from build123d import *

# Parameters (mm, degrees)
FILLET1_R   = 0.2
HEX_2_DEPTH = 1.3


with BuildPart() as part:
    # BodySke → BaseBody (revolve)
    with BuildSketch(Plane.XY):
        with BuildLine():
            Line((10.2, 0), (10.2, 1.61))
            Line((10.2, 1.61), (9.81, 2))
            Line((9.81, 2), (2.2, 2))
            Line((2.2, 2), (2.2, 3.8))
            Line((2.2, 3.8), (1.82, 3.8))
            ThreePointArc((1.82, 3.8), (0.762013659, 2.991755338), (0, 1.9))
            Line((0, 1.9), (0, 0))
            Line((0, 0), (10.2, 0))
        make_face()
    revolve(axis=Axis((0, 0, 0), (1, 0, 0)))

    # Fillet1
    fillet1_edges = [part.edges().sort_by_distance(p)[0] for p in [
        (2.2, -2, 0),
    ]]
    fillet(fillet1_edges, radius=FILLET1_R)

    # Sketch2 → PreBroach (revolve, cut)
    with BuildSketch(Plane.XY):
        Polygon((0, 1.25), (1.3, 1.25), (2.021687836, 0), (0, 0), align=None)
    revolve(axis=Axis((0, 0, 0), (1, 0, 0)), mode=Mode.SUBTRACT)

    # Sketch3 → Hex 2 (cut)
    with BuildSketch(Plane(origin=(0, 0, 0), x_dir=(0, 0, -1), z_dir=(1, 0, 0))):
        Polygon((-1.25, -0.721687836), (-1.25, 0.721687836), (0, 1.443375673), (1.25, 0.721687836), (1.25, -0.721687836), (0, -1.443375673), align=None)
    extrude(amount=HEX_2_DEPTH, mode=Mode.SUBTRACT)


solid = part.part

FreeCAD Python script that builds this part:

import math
import FreeCAD as App
import Part
import Sketcher

V = App.Vector
Q = App.Units.Quantity


def edges_at(feature, points):
    """Names of the edges that pass closest to the given points."""
    edges = feature.Shape.Edges
    near = lambda p: min(range(len(edges)), key=lambda i: edges[i].distToShape(Part.Vertex(*p))[0])
    return sorted({f"Edge{near(p) + 1}" for p in points})


def add_polygon(sketch, points):
    """Adds a closed chain of lines whose ends are joined by coincident constraints."""
    first, n = sketch.GeometryCount, len(points)
    for a, b in zip(points, points[1:] + points[:1]):
        sketch.addGeometry(Part.LineSegment(App.Vector(*a, 0), App.Vector(*b, 0)), False)
    for i in range(n):
        sketch.addConstraint(Sketcher.Constraint("Coincident", first + i, 2, first + (i + 1) % n, 1))

doc = App.newDocument("Part")
body = doc.addObject("PartDesign::Body", "Body")

sketch1 = body.newObject("Sketcher::SketchObject", "Sketch")
sketch1.AttachmentSupport = (doc.getObject("XY_Plane"), [""])
sketch1.MapMode = "FlatFace"
sketch1.addGeometry([
    Part.LineSegment(V(10.2, 0, 0), V(10.2, 1.61, 0)),
    Part.LineSegment(V(10.2, 1.61, 0), V(9.81, 2, 0)),
    Part.LineSegment(V(9.81, 2, 0), V(2.2, 2, 0)),
    Part.LineSegment(V(2.2, 2, 0), V(2.2, 3.8, 0)),
    Part.LineSegment(V(2.2, 3.8, 0), V(1.82, 3.8, 0)),
    Part.ArcOfCircle(Part.Circle(V(3.885275, 0, 0), V(0, 0, 1), 4.324969), math.radians(118.523786), math.radians(153.940169)),
    Part.LineSegment(V(0, 1.9, 0), V(0, 0, 0)),
    Part.LineSegment(V(0, 0, 0), V(10.2, 0, 0)),
], False)
sketch1.addConstraint([
    Sketcher.Constraint("Coincident", 0, 2, 1, 1),
    Sketcher.Constraint("Coincident", 1, 2, 2, 1),
    Sketcher.Constraint("Coincident", 2, 2, 3, 1),
    Sketcher.Constraint("Coincident", 3, 2, 4, 1),
    Sketcher.Constraint("Coincident", 4, 2, 5, 1),
    Sketcher.Constraint("Coincident", 5, 2, 6, 1),
    Sketcher.Constraint("Coincident", 6, 2, 7, 1),
    Sketcher.Constraint("Coincident", 7, 2, 0, 1),
    Sketcher.Constraint("Vertical", 0),
    Sketcher.Constraint("Horizontal", 2),
    Sketcher.Constraint("Vertical", 3),
    Sketcher.Constraint("Horizontal", 4),
    Sketcher.Constraint("Vertical", 6),
    Sketcher.Constraint("Horizontal", 7),
    Sketcher.Constraint("Coincident", 6, 2, -1, 1),
    Sketcher.Constraint("PointOnObject", 5, 3, -1),
    Sketcher.Constraint("Angle", 1, Q("135 deg")),
    Sketcher.Constraint("DistanceX", 7, 1, 7, 2, 10.2),
    Sketcher.Constraint("DistanceY", 3, 1, 3, 2, 1.8),
    Sketcher.Constraint("DistanceY", 6, 2, 6, 1, 1.9),
    Sketcher.Constraint("DistanceY", -1, 1, 1, 2, 2.0),
    Sketcher.Constraint("DistanceX", 2, 2, 0, 2, 8.0),
    Sketcher.Constraint("DistanceX", 2, 2, 2, 1, 7.61),
    Sketcher.Constraint("DistanceX", 4, 2, 4, 1, 0.38),
])
revolution = body.newObject("PartDesign::Revolution", "Revolution")
revolution.Profile = sketch1
revolution.ReferenceAxis = (sketch1, ["H_Axis"])
revolution.Angle = 360
doc.recompute()

fillet = body.newObject("PartDesign::Fillet", "Fillet")
fillet.Base = (revolution, edges_at(revolution, [(2.2, -2, 0)]))
fillet.Radius = 0.2

sketch2 = body.newObject("Sketcher::SketchObject", "Sketch001")
sketch2.AttachmentSupport = (doc.getObject("XY_Plane"), [""])
sketch2.MapMode = "FlatFace"
add_polygon(sketch2, [(1.3, 1.25), (0, 1.25), (0, 0), (2.021688, 0)])
sketch2.addConstraint([
    Sketcher.Constraint("Horizontal", 0),
    Sketcher.Constraint("Vertical", 1),
    Sketcher.Constraint("Horizontal", 2),
    Sketcher.Constraint("Coincident", 1, 2, -1, 1),
    Sketcher.Constraint("Angle", 3, Q("120 deg")),
    Sketcher.Constraint("DistanceX", 0, 2, 0, 1, 1.3),
    Sketcher.Constraint("DistanceY", 1, 2, 1, 1, 1.25),
])
groove = body.newObject("PartDesign::Groove", "Groove")
groove.Profile = sketch2
groove.ReferenceAxis = (sketch2, ["H_Axis"])
groove.Angle = 360

sketch3 = body.newObject("Sketcher::SketchObject", "Sketch002")
sketch3.AttachmentSupport = (doc.getObject("YZ_Plane"), [""])
sketch3.MapMode = "FlatFace"
add_polygon(sketch3, [(0.721688, 1.25), (-0.721688, 1.25), (-1.443376, 0), (-0.721688, -1.25), (0.721688, -1.25), (1.443376, 0)])
sketch3.addConstraint([
    Sketcher.Constraint("Horizontal", 0),
    Sketcher.Constraint("Horizontal", 3),
    Sketcher.Constraint("Symmetric", 0, 2, 3, 2, -1, 1),
    Sketcher.Constraint("Symmetric", 1, 2, 4, 2, -1, 1),
    Sketcher.Constraint("PointOnObject", 1, 2, -1),
    Sketcher.Constraint("Parallel", 2, 5),
    Sketcher.Constraint("Vertical", 0, 2, 2, 2),
    Sketcher.Constraint("Angle", 1, Q("-120 deg")),
    Sketcher.Constraint("DistanceY", 2, 2, 0, 2, 2.5),
    Sketcher.Constraint("DistanceX", 0, 2, 0, 1, 1.443376),
])
pocket1 = body.newObject("PartDesign::Pocket", "Pocket")
pocket1.Profile = sketch3
pocket1.Length = 1.3
pocket1.Reversed = True

doc.recompute()
